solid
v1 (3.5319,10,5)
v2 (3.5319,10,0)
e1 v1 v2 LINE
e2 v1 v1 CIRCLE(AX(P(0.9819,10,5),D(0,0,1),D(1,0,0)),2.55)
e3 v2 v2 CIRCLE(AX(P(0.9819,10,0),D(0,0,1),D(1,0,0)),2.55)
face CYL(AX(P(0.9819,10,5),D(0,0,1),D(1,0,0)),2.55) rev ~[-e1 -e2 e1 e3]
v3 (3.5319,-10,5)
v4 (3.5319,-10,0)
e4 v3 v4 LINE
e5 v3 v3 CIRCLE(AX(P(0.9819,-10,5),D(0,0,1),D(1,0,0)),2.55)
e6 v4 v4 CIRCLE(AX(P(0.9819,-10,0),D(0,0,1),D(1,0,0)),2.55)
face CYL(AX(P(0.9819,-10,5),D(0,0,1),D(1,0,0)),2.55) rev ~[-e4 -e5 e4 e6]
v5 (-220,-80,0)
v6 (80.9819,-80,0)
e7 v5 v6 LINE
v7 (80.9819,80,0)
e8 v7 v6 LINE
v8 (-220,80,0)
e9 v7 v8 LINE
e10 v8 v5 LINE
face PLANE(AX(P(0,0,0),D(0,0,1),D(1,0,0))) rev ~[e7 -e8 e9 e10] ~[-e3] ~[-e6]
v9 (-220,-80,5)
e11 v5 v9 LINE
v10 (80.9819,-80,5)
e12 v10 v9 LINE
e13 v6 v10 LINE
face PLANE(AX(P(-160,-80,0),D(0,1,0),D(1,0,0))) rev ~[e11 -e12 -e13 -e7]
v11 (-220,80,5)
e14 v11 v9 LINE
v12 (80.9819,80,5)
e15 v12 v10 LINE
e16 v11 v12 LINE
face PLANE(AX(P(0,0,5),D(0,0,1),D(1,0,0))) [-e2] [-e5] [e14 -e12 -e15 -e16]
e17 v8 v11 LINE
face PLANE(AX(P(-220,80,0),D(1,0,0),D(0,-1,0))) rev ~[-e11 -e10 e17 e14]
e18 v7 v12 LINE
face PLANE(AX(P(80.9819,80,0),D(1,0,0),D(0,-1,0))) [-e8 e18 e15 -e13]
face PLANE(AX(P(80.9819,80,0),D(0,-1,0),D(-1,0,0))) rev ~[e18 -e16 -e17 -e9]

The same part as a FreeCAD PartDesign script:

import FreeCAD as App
import Part
import Sketcher
from FreeCAD import Vector

doc = App.newDocument("Part")
body = doc.addObject("PartDesign::Body", "Body")

# Sketch on XY plane
sketch1 = doc.addObject("Sketcher::SketchObject", "Sketch")
body.addObject(sketch1)
sketch1.AttachmentSupport = (doc.XY_Plane, [""])
sketch1.MapMode = "FlatFace"
sketch1.addGeometry(Part.LineSegment(Vector(81, -80, 0), Vector(81, 80, 0)), False)
sketch1.addGeometry(Part.LineSegment(Vector(81, 80, 0), Vector(-220, 80, 0)), False)
sketch1.addGeometry(Part.LineSegment(Vector(-220, 80, 0), Vector(-220, -80, 0)), False)
sketch1.addGeometry(Part.LineSegment(Vector(-220, -80, 0), Vector(81, -80, 0)), False)
sketch1.addConstraint(Sketcher.Constraint("Coincident", 0, 2, 1, 1))
sketch1.addConstraint(Sketcher.Constraint("Coincident", 1, 2, 2, 1))
sketch1.addConstraint(Sketcher.Constraint("Coincident", 2, 2, 3, 1))
sketch1.addConstraint(Sketcher.Constraint("Coincident", 3, 2, 0, 1))
sketch1.addConstraint(Sketcher.Constraint("Vertical", 0))
sketch1.addConstraint(Sketcher.Constraint("Horizontal", 1))
sketch1.addConstraint(Sketcher.Constraint("Vertical", 2))
sketch1.addConstraint(Sketcher.Constraint("Horizontal", 3))
sketch1.addConstraint(Sketcher.Constraint("DistanceY", 0, 1, 0, 2, 160.0))
sketch1.addConstraint(Sketcher.Constraint("DistanceY", -1, 1, 0, 2, 80.0))
sketch1.addConstraint(Sketcher.Constraint("DistanceX", 1, 2, -1, 1, 220.0))
sketch1.addConstraint(Sketcher.Constraint("DistanceX", 1, 2, 1, 1, 300.982))
pad1 = doc.addObject("PartDesign::Pad", "Pad")
body.addObject(pad1)
pad1.Profile = sketch1
pad1.Length = 5

# Sketch on XY plane
sketch2 = doc.addObject("Sketcher::SketchObject", "Sketch001")
body.addObject(sketch2)
sketch2.AttachmentSupport = (doc.XY_Plane, [""])
sketch2.MapMode = "FlatFace"
sketch2.AttachmentOffset = App.Placement(Vector(0, 0, 5), App.Rotation())
sketch2.addGeometry(Part.Circle(Vector(1, 10, 0), Vector(0, 0, 1), 2.5), False)
sketch2.addGeometry(Part.Circle(Vector(1, -10, 0), Vector(0, 0, 1), 2.5), False)
sketch2.addConstraint(Sketcher.Constraint("Equal", 0, 1))
sketch2.addConstraint(Sketcher.Constraint("Symmetric", 0, 3, 1, 3, -1))
sketch2.addConstraint(Sketcher.Constraint("Diameter", 0, 5.1))
sketch2.addConstraint(Sketcher.Constraint("DistanceY", -1, 1, 0, 3, 10.0))
sketch2.addConstraint(Sketcher.Constraint("DistanceX", -1, 1, 0, 3, 0.982))
pocket1 = doc.addObject("PartDesign::Pocket", "Pocket")
body.addObject(pocket1)
pocket1.Profile = sketch2
pocket1.Type = "ThroughAll"

doc.recompute()
